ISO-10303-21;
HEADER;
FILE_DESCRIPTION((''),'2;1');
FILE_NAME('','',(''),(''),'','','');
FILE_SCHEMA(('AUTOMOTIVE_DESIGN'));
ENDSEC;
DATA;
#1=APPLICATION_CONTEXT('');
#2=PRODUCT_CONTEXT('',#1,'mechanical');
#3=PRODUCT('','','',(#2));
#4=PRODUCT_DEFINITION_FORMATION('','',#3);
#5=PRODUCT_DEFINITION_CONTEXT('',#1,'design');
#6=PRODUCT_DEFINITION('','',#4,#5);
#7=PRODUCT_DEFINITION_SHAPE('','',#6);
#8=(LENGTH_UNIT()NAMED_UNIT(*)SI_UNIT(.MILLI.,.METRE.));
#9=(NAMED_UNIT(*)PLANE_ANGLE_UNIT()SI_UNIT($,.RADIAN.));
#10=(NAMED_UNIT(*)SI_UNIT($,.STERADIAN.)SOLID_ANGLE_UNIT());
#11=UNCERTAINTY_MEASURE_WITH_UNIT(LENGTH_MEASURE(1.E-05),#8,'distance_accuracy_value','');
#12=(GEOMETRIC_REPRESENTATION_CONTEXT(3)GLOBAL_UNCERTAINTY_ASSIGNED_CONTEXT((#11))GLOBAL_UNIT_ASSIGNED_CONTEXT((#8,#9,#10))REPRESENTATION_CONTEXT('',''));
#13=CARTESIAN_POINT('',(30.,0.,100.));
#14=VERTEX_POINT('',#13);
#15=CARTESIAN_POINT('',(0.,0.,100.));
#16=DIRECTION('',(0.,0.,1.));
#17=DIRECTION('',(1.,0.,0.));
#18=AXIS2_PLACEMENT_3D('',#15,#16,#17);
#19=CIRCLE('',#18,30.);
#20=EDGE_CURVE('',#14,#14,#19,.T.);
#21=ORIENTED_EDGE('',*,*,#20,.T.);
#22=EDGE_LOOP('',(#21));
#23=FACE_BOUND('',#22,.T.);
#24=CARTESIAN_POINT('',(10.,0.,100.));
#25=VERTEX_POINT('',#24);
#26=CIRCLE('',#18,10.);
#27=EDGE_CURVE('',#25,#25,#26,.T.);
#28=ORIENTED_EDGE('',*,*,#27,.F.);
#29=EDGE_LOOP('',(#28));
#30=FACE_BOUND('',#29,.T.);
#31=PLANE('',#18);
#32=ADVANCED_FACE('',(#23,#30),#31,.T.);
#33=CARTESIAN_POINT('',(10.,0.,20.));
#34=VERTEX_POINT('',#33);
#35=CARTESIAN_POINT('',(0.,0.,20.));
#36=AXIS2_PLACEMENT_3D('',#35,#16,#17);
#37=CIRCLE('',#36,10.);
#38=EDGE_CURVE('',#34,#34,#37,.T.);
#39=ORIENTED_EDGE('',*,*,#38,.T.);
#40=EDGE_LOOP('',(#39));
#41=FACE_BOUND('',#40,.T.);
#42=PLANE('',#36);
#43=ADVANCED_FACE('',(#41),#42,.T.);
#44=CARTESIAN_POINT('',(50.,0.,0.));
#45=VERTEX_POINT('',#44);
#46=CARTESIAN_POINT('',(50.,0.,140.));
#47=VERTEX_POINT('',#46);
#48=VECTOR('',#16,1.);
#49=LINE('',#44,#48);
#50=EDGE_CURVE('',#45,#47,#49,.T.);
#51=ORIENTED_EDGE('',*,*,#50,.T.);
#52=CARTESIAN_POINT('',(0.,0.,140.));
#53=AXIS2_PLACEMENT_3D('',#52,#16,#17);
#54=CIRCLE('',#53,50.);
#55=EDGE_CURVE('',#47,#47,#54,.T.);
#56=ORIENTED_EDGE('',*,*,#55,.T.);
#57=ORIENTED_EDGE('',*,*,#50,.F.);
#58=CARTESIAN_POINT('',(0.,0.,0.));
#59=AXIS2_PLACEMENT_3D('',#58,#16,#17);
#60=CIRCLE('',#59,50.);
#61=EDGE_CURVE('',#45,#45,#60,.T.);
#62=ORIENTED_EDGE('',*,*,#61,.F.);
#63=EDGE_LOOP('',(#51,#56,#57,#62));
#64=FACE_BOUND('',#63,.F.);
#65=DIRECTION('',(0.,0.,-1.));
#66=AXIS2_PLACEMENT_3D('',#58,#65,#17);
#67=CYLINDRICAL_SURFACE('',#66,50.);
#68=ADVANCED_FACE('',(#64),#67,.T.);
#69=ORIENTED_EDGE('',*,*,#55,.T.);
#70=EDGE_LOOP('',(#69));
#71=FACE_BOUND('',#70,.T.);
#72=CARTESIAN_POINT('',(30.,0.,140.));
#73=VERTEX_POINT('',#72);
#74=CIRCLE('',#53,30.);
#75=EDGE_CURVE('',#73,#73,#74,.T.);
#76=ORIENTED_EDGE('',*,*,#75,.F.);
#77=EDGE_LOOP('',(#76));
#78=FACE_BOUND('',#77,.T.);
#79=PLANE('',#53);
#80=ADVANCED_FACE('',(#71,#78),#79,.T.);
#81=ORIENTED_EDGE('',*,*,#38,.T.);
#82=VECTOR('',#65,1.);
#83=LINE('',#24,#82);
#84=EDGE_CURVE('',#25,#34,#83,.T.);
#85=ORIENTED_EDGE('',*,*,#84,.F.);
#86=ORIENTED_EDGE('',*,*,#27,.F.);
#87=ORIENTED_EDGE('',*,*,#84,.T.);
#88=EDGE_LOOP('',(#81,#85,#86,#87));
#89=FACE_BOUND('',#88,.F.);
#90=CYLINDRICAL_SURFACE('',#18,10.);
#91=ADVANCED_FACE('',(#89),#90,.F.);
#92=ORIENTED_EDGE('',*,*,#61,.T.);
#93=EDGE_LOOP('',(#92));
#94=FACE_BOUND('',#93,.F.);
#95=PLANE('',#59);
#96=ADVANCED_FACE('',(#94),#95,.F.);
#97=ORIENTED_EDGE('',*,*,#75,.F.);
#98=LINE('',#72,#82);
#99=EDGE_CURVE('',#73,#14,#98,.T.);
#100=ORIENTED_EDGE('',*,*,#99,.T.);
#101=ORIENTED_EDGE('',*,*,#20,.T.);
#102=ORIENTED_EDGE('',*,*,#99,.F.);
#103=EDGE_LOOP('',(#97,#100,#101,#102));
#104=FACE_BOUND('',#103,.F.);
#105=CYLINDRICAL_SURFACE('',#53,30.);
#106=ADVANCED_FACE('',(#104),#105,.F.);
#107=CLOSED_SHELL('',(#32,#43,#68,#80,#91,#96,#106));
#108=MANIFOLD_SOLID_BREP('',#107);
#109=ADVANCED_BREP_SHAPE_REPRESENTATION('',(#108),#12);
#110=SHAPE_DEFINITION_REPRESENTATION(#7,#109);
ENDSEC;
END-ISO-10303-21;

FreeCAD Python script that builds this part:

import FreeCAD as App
import Part
import Sketcher
from FreeCAD import Vector
Q = App.Units.Quantity

doc = App.newDocument("Part")
body = doc.addObject("PartDesign::Body", "Body")

sketch1 = doc.addObject("Sketcher::SketchObject", "Sketch")
body.addObject(sketch1)
sketch1.AttachmentSupport = (doc.XY_Plane, [""])
sketch1.MapMode = "FlatFace"
sketch1.addGeometry(Part.Circle(Vector(0, 0, 0), Vector(0, 0, 1), 50), False)
sketch1.addConstraint(Sketcher.Constraint("Coincident", 0, 3, -1, 1))
sketch1.addConstraint(Sketcher.Constraint("Diameter", 0, Q("100 mm")))
pad1 = doc.addObject("PartDesign::Pad", "Pad")
body.addObject(pad1)
pad1.Profile = sketch1
pad1.Length = 140

sketch2 = doc.addObject("Sketcher::SketchObject", "Sketch001")
body.addObject(sketch2)
sketch2.AttachmentSupport = (doc.XY_Plane, [""])
sketch2.MapMode = "FlatFace"
sketch2.AttachmentOffset = App.Placement(Vector(0, 0, 140), App.Rotation())
sketch2.addGeometry(Part.Circle(Vector(0, 0, 0), Vector(0, 0, 1), 30), False)
sketch2.addConstraint(Sketcher.Constraint("Coincident", 0, 3, -1, 1))
sketch2.addConstraint(Sketcher.Constraint("Diameter", 0, Q("60 mm")))
pocket1 = doc.addObject("PartDesign::Pocket", "Pocket")
body.addObject(pocket1)
pocket1.Profile = sketch2
pocket1.Length = 40

sketch3 = doc.addObject("Sketcher::SketchObject", "Sketch002")
body.addObject(sketch3)
sketch3.AttachmentSupport = (doc.XY_Plane, [""])
sketch3.MapMode = "FlatFace"
sketch3.AttachmentOffset = App.Placement(Vector(0, 0, 100), App.Rotation())
sketch3.addGeometry(Part.Circle(Vector(0, 0, 0), Vector(0, 0, 1), 10), False)
sketch3.addConstraint(Sketcher.Constraint("Coincident", 0, 3, -1, 1))
sketch3.addConstraint(Sketcher.Constraint("Diameter", 0, Q("20 mm")))
pocket2 = doc.addObject("PartDesign::Pocket", "Pocket001")
body.addObject(pocket2)
pocket2.Profile = sketch3
pocket2.Length = 80

doc.recompute()
